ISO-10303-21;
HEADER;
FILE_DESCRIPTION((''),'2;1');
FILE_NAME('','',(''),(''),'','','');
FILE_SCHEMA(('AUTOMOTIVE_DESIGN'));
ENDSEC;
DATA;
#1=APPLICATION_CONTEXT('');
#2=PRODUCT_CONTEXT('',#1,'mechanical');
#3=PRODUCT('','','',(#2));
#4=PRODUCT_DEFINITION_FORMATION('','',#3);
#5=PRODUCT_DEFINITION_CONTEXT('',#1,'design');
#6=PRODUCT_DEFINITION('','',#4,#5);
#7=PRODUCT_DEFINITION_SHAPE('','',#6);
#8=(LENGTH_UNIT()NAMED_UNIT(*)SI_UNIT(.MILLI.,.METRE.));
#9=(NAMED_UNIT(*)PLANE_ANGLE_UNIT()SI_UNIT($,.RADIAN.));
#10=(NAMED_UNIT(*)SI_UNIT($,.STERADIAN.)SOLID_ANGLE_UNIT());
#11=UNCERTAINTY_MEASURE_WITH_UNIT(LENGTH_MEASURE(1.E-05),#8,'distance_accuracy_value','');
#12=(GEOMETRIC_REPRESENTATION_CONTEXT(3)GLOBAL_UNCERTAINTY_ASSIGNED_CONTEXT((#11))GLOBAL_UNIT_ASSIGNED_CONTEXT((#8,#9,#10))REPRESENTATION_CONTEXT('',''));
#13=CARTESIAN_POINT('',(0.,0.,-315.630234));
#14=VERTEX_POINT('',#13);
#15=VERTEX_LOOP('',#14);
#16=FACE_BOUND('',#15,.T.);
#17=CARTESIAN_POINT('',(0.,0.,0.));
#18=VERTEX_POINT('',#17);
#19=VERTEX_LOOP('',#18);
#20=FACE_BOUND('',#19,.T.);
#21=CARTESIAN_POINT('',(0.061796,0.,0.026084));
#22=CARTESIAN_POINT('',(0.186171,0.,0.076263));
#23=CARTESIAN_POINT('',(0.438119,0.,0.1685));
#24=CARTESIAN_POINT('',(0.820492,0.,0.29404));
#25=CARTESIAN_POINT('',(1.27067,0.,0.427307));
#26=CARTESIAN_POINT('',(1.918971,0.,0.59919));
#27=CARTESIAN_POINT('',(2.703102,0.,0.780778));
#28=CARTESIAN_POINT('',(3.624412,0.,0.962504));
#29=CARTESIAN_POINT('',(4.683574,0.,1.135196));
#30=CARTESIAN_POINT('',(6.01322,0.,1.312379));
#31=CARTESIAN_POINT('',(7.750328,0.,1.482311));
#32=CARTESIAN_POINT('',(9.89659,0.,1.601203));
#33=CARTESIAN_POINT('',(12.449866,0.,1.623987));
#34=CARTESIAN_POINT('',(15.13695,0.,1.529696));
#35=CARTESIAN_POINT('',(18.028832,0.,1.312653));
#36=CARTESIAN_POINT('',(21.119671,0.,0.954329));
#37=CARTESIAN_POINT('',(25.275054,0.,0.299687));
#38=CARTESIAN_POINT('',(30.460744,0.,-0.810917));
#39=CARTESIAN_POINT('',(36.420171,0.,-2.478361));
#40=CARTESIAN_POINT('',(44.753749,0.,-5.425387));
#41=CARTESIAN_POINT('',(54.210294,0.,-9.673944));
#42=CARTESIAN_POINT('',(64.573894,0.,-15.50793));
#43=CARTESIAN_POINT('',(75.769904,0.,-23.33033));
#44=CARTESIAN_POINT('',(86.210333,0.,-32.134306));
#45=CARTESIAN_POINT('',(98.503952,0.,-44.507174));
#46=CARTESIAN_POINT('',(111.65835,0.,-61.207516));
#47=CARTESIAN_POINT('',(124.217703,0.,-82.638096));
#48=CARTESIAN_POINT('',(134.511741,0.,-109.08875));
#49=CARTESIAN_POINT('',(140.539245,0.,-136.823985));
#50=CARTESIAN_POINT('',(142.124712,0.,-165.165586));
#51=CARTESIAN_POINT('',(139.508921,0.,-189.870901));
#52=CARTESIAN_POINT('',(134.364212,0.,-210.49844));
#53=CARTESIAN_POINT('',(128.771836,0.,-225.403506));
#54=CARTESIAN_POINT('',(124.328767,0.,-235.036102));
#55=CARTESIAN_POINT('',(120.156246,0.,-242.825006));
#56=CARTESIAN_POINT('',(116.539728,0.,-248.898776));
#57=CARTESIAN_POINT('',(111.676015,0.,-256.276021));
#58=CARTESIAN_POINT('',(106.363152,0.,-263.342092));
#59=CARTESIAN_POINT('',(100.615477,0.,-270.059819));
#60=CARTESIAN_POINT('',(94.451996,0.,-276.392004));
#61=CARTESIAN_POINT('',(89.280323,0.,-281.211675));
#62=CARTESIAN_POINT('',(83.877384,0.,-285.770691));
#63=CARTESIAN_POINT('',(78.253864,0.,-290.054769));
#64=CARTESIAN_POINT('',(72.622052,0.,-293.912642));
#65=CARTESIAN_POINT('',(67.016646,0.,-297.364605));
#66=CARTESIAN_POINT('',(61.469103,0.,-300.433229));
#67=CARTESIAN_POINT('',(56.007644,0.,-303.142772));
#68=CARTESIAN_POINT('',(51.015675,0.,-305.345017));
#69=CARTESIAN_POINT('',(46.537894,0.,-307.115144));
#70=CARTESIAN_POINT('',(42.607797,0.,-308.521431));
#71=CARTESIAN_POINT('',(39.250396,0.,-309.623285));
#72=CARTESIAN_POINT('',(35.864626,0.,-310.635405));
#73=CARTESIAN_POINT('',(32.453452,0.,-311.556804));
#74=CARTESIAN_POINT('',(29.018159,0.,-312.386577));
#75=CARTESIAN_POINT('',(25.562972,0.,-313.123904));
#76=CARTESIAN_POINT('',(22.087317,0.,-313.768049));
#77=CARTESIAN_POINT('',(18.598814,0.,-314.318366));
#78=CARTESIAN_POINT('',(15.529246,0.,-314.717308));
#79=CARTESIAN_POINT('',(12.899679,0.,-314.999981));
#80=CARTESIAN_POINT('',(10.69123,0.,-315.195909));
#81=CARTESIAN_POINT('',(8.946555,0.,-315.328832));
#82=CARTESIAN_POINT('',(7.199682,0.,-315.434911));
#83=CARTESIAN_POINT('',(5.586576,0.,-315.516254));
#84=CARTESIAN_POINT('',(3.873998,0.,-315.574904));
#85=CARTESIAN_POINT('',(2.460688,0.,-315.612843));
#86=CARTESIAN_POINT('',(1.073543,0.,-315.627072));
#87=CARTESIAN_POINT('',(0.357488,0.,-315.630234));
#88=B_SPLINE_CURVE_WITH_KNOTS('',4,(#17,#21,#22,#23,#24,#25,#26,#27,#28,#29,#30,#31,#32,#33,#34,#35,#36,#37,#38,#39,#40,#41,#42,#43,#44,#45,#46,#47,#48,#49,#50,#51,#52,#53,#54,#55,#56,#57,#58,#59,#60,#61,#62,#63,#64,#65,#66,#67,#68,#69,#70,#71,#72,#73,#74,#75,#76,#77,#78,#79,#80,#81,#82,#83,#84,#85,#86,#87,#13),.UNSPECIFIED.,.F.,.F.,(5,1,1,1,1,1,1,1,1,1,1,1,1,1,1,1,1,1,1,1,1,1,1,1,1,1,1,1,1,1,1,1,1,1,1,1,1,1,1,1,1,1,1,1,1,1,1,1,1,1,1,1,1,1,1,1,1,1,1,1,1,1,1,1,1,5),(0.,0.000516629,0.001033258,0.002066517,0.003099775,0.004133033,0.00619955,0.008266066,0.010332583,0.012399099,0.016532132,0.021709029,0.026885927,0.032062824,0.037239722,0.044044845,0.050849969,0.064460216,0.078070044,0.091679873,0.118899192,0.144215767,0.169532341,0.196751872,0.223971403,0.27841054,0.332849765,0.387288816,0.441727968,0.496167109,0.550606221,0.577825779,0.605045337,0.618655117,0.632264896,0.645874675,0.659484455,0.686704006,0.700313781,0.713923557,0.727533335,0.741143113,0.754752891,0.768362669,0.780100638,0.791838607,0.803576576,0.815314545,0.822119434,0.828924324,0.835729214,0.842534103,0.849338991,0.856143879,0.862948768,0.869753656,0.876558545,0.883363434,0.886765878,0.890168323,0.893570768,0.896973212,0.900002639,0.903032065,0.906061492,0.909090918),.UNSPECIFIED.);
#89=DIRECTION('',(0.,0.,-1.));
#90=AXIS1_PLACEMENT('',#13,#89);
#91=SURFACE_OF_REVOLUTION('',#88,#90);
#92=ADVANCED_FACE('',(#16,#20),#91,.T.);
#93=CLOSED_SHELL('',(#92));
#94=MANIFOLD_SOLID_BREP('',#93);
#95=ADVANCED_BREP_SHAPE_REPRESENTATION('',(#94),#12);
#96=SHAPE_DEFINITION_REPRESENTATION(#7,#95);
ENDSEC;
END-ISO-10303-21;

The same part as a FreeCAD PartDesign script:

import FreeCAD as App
import Part
import Sketcher

V = App.Vector

doc = App.newDocument("Part")
body = doc.addObject("PartDesign::Body", "Body")

# Sketch on XZ plane
sketch1 = body.newObject("Sketcher::SketchObject", "Sketch")
sketch1.AttachmentSupport = (doc.getObject("XZ_Plane"), [""])
sketch1.MapMode = "FlatFace"
sketch1.addGeometry([
    Part.LineSegment(V(0, -315.630234, 0), V(0, 0, 0)),
    Part.BSplineCurve([V(0, 0, 0), V(0.061796, 0.026084, 0), V(0.186171, 0.076263, 0), V(0.438119, 0.1685, 0), V(0.820492, 0.29404, 0), V(1.27067, 0.427307, 0), V(1.918971, 0.59919, 0), V(2.703102, 0.780778, 0), V(3.624412, 0.962504, 0), V(4.683574, 1.135196, 0), V(6.01322, 1.312379, 0), V(7.750328, 1.482311, 0), V(9.89659, 1.601203, 0), V(12.449866, 1.623987, 0), V(15.13695, 1.529696, 0), V(18.028832, 1.312653, 0), V(21.119671, 0.954329, 0), V(25.275054, 0.299687, 0), V(30.460744, -0.810917, 0), V(36.420171, -2.478361, 0), V(44.753749, -5.425387, 0), V(54.210294, -9.673944, 0), V(64.573894, -15.50793, 0), V(75.769904, -23.33033, 0), V(86.210333, -32.134306, 0), V(98.503952, -44.507174, 0), V(111.65835, -61.207516, 0), V(124.217703, -82.638096, 0), V(134.511741, -109.08875, 0), V(140.539245, -136.823985, 0), V(142.124712, -165.165586, 0), V(139.508921, -189.870901, 0), V(134.364212, -210.49844, 0), V(128.771836, -225.403506, 0), V(124.328767, -235.036102, 0), V(120.156246, -242.825006, 0), V(116.539728, -248.898776, 0), V(111.676015, -256.276021, 0), V(106.363152, -263.342092, 0), V(100.615477, -270.059819, 0), V(94.451996, -276.392004, 0), V(89.280323, -281.211675, 0), V(83.877384, -285.770691, 0), V(78.253864, -290.054769, 0), V(72.622052, -293.912642, 0), V(67.016646, -297.364605, 0), V(61.469103, -300.433229, 0), V(56.007644, -303.142772, 0), V(51.015675, -305.345017, 0), V(46.537894, -307.115144, 0), V(42.607797, -308.521431, 0), V(39.250396, -309.623285, 0), V(35.864626, -310.635405, 0), V(32.453452, -311.556804, 0), V(29.018159, -312.386577, 0), V(25.562972, -313.123904, 0), V(22.087317, -313.768049, 0), V(18.598814, -314.318366, 0), V(15.529246, -314.717308, 0), V(12.899679, -314.999981, 0), V(10.69123, -315.195909, 0), V(8.946555, -315.328832, 0), V(7.199682, -315.434911, 0), V(5.586576, -315.516254, 0), V(3.873998, -315.574904, 0), V(2.460688, -315.612843, 0), V(1.073543, -315.627072, 0), V(0.357488, -315.630234, 0), V(0, -315.630234, 0)], [5, 1, 1, 1, 1, 1, 1, 1, 1, 1, 1, 1, 1, 1, 1, 1, 1, 1, 1, 1, 1, 1, 1, 1, 1, 1, 1, 1, 1, 1, 1, 1, 1, 1, 1, 1, 1, 1, 1, 1, 1, 1, 1, 1, 1, 1, 1, 1, 1, 1, 1, 1, 1, 1, 1, 1, 1, 1, 1, 1, 1, 1, 1, 1, 1, 5], [0, 0.000516629, 0.001033258, 0.002066517, 0.003099775, 0.004133033, 0.00619955, 0.008266066, 0.010332583, 0.012399099, 0.016532132, 0.021709029, 0.026885927, 0.032062824, 0.037239722, 0.044044845, 0.050849969, 0.064460216, 0.078070044, 0.091679873, 0.118899192, 0.144215767, 0.169532341, 0.196751872, 0.223971403, 0.27841054, 0.332849765, 0.387288816, 0.441727968, 0.496167109, 0.550606221, 0.577825779, 0.605045337, 0.618655117, 0.632264896, 0.645874675, 0.659484455, 0.686704006, 0.700313781, 0.713923557, 0.727533335, 0.741143113, 0.754752891, 0.768362669, 0.780100638, 0.791838607, 0.803576576, 0.815314545, 0.822119434, 0.828924324, 0.835729214, 0.842534103, 0.849338991, 0.856143879, 0.862948768, 0.869753656, 0.876558545, 0.883363434, 0.886765878, 0.890168323, 0.893570768, 0.896973212, 0.900002639, 0.903032065, 0.906061492, 0.909090918], False, 4, [1, 1, 1, 1, 1, 1, 1, 1, 1, 1, 1, 1, 1, 1, 1, 1, 1, 1, 1, 1, 1, 1, 1, 1, 1, 1, 1, 1, 1, 1, 1, 1, 1, 1, 1, 1, 1, 1, 1, 1, 1, 1, 1, 1, 1, 1, 1, 1, 1, 1, 1, 1, 1, 1, 1, 1, 1, 1, 1, 1, 1, 1, 1, 1, 1, 1, 1, 1, 1], False),
], False)
sketch1.addConstraint([
    Sketcher.Constraint("Block", 1),
    Sketcher.Constraint("Coincident", 0, 1, 1, 2),
    Sketcher.Constraint("Coincident", 1, 1, 0, 2),
])
revolution = body.newObject("PartDesign::Revolution", "Revolution")
revolution.Profile = sketch1
revolution.ReferenceAxis = (sketch1, ["V_Axis"])
revolution.Angle = 360

doc.recompute()
